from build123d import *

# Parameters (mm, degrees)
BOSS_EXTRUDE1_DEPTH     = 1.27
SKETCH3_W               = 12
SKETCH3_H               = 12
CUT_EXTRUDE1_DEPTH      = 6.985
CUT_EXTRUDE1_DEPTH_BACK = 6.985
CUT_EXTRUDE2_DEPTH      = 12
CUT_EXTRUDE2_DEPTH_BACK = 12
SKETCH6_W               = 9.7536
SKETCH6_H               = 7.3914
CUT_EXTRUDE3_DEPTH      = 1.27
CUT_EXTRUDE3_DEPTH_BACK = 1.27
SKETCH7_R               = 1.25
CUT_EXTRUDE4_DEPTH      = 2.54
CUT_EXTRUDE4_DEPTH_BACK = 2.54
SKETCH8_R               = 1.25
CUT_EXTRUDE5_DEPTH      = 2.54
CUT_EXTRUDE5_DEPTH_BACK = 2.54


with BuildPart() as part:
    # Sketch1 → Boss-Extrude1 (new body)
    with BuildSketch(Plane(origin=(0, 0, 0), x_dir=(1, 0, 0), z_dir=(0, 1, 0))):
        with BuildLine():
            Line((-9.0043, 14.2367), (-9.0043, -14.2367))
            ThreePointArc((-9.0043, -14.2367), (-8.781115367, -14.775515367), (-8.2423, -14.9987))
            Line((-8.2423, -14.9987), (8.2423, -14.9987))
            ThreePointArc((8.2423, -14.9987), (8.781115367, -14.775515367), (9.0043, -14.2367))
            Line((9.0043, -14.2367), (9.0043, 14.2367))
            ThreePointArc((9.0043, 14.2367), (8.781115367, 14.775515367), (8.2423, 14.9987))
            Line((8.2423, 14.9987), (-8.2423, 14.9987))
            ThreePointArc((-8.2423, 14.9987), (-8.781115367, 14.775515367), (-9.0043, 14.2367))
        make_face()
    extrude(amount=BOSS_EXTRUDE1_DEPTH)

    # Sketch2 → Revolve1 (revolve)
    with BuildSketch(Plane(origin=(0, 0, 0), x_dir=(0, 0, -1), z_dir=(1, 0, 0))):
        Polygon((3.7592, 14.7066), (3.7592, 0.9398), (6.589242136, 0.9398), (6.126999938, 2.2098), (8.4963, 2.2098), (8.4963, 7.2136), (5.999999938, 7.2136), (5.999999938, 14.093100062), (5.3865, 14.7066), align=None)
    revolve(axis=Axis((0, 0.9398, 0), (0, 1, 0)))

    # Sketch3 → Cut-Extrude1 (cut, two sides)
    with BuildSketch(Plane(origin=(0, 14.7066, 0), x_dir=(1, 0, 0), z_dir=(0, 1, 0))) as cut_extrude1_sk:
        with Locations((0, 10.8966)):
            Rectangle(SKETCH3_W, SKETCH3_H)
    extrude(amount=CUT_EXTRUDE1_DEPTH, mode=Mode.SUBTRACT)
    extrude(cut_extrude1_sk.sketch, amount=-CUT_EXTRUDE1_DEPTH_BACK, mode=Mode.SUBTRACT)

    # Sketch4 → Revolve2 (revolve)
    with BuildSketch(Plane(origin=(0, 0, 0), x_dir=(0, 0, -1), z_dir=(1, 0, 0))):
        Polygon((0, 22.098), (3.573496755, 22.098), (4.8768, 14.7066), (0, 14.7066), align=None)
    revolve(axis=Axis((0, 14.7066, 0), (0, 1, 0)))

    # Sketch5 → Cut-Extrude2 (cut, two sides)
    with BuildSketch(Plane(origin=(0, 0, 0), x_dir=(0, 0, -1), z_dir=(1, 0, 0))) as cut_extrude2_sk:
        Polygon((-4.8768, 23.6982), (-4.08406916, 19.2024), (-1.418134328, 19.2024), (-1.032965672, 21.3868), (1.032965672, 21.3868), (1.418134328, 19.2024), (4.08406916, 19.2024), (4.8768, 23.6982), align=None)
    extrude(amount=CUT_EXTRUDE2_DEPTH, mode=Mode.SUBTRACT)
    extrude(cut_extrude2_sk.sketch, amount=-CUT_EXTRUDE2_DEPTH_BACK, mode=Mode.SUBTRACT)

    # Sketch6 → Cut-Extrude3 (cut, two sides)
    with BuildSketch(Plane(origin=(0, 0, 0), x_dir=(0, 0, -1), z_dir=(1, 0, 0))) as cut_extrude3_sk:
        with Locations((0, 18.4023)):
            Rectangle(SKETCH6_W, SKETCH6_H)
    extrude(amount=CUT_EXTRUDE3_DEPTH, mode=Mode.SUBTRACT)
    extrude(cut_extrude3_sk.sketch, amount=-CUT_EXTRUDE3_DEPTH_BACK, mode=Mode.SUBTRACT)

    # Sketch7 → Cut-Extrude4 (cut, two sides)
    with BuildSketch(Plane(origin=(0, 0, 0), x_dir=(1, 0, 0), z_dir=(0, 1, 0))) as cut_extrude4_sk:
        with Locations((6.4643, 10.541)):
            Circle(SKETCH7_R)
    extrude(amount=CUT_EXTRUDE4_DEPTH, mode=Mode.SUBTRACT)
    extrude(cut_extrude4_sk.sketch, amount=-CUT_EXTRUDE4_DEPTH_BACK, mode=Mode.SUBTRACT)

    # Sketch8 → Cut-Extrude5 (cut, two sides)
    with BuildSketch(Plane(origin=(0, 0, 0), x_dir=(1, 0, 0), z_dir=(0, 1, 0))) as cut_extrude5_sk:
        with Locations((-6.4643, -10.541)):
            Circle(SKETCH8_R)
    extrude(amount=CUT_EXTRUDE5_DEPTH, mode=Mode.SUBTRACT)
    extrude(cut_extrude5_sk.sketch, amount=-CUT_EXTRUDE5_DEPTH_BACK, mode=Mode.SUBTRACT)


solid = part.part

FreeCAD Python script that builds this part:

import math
import FreeCAD as App
import Part
import Sketcher
from FreeCAD import Vector
Q = App.Units.Quantity

doc = App.newDocument("Part")
body = doc.addObject("PartDesign::Body", "Body")

# Sketch on XZ plane
sketch1 = body.newObject("Sketcher::SketchObject", "Sketch")
sketch1.AttachmentSupport = (doc.getObject("XZ_Plane"), [""])
sketch1.MapMode = "FlatFace"
sketch1.addGeometry([
    Part.LineSegment(Vector(-9, -14.2, 0), Vector(-9, 14.2, 0)),  # 0
    Part.ArcOfCircle(Part.Circle(Vector(-8.2, 14.2, 0), Vector(0, 0, 1), 0.8), math.radians(90), math.radians(180)),  # 1
    Part.LineSegment(Vector(-8.2, 15, 0), Vector(8.2, 15, 0)),  # 2
    Part.ArcOfCircle(Part.Circle(Vector(8.2, 14.2, 0), Vector(0, 0, 1), 0.8), math.radians(0), math.radians(90)),  # 3
    Part.LineSegment(Vector(9, 14.2, 0), Vector(9, -14.2, 0)),  # 4
    Part.ArcOfCircle(Part.Circle(Vector(8.2, -14.2, 0), Vector(0, 0, 1), 0.8), math.radians(-90), math.radians(0)),  # 5
    Part.LineSegment(Vector(8.2, -15, 0), Vector(-8.2, -15, 0)),  # 6
    Part.ArcOfCircle(Part.Circle(Vector(-8.2, -14.2, 0), Vector(0, 0, 1), 0.8), math.radians(-180), math.radians(-90)),  # 7
], False)
sketch1.addConstraint([
    Sketcher.Constraint("Tangent", 0, 2, 1, 2),
    Sketcher.Constraint("Tangent", 1, 1, 2, 1),
    Sketcher.Constraint("Tangent", 2, 2, 3, 2),
    Sketcher.Constraint("Tangent", 3, 1, 4, 1),
    Sketcher.Constraint("Tangent", 4, 2, 5, 2),
    Sketcher.Constraint("Tangent", 5, 1, 6, 1),
    Sketcher.Constraint("Tangent", 6, 2, 7, 2),
    Sketcher.Constraint("Tangent", 7, 1, 0, 1),
    Sketcher.Constraint("Vertical", 0),
    Sketcher.Constraint("Horizontal", 2),
    Sketcher.Constraint("Vertical", 4),
    Sketcher.Constraint("Horizontal", 6),
    Sketcher.Constraint("Equal", 1, 3),
    Sketcher.Constraint("Equal", 3, 5),
    Sketcher.Constraint("Equal", 5, 7),
    Sketcher.Constraint("Symmetric", 1, 3, 5, 3, -1, 1),
    Sketcher.Constraint("Radius", 1, Q("0.03 in")),
    Sketcher.Constraint("DistanceX", 2, 1, 2, 2, Q("0.649 in")),
    Sketcher.Constraint("DistanceY", 0, 1, 0, 2, Q("1.121 in")),
])
pad1 = body.newObject("PartDesign::Pad", "Pad")
pad1.Profile = sketch1
pad1.Length = Q("0.05 in")
pad1.Reversed = True

# Sketch on YZ plane
sketch2 = body.newObject("Sketcher::SketchObject", "Sketch001")
sketch2.AttachmentSupport = (doc.getObject("YZ_Plane"), [""])
sketch2.MapMode = "FlatFace"
sketch2.addGeometry([
    Part.LineSegment(Vector(14.7, -3.8, 0), Vector(0.9, -3.8, 0)),  # 0
    Part.LineSegment(Vector(0.9, -3.8, 0), Vector(0.9, -6.6, 0)),  # 1
    Part.LineSegment(Vector(0.9, -6.6, 0), Vector(2.2, -6.1, 0)),  # 2
    Part.LineSegment(Vector(2.2, -6.1, 0), Vector(2.2, -8.5, 0)),  # 3
    Part.LineSegment(Vector(2.2, -8.5, 0), Vector(7.2, -8.5, 0)),  # 4
    Part.LineSegment(Vector(7.2, -8.5, 0), Vector(7.2, -6, 0)),  # 5
    Part.LineSegment(Vector(7.2, -6, 0), Vector(14.1, -6, 0)),  # 6
    Part.LineSegment(Vector(14.1, -6, 0), Vector(14.7, -5.4, 0)),  # 7
    Part.LineSegment(Vector(14.7, -5.4, 0), Vector(14.7, -3.8, 0)),  # 8
], False)
sketch2.addConstraint([
    Sketcher.Constraint("Coincident", 0, 2, 1, 1),
    Sketcher.Constraint("Coincident", 1, 2, 2, 1),
    Sketcher.Constraint("Coincident", 2, 2, 3, 1),
    Sketcher.Constraint("Coincident", 3, 2, 4, 1),
    Sketcher.Constraint("Coincident", 4, 2, 5, 1),
    Sketcher.Constraint("Coincident", 5, 2, 6, 1),
    Sketcher.Constraint("Coincident", 6, 2, 7, 1),
    Sketcher.Constraint("Coincident", 7, 2, 8, 1),
    Sketcher.Constraint("Coincident", 8, 2, 0, 1),
    Sketcher.Constraint("Horizontal", 0),
    Sketcher.Constraint("Vertical", 1),
    Sketcher.Constraint("Vertical", 3),
    Sketcher.Constraint("Horizontal", 4),
    Sketcher.Constraint("Vertical", 5),
    Sketcher.Constraint("Horizontal", 6),
    Sketcher.Constraint("Vertical", 8),
    Sketcher.Constraint("Angle", 2, Q("20 deg")),
    Sketcher.Constraint("Angle", 7, Q("45 deg")),
    Sketcher.Constraint("DistanceX", 0, 2, 0, 1, Q("0.542 in")),
    Sketcher.Constraint("DistanceX", 4, 1, 4, 2, Q("0.197 in")),
    Sketcher.Constraint("DistanceX", 1, 2, 2, 2, Q("0.05 in")),
    Sketcher.Constraint("DistanceX", -1, 1, 0, 2, Q("0.037 in")),
    Sketcher.Constraint("DistanceY", 0, 2, -1, 1, Q("0.148 in")),
    Sketcher.Constraint("DistanceY", 2, 2, 5, 2, Q("0.005 in")),
    Sketcher.Constraint("DistanceX", 6, 1, 6, 2, 6.8795),
    Sketcher.Constraint("DistanceY", 3, 2, 3, 1, 2.3693),
    Sketcher.Constraint("DistanceY", 8, 1, 8, 2, 1.6273),
])
revolution = body.newObject("PartDesign::Revolution", "Revolution")
revolution.Profile = sketch2
revolution.ReferenceAxis = (sketch2, ["H_Axis"])
revolution.Angle = 360

# Sketch on XZ plane
sketch3 = body.newObject("Sketcher::SketchObject", "Sketch002")
sketch3.AttachmentSupport = (doc.getObject("XZ_Plane"), [""])
sketch3.MapMode = "FlatFace"
sketch3.AttachmentOffset = App.Placement(Vector(0, 0, -0.579 * 25.4), App.Rotation())
sketch3.addGeometry([
    Part.LineSegment(Vector(-6, -17, 0), Vector(-6, -5, 0)),
    Part.LineSegment(Vector(-6, -5, 0), Vector(6, -5, 0)),
    Part.LineSegment(Vector(6, -5, 0), Vector(6, -17, 0)),
    Part.LineSegment(Vector(6, -17, 0), Vector(-6, -17, 0)),
], False)
sketch3.addConstraint([
    Sketcher.Constraint("Coincident", 0, 2, 1, 1),
    Sketcher.Constraint("Coincident", 1, 2, 2, 1),
    Sketcher.Constraint("Coincident", 2, 2, 3, 1),
    Sketcher.Constraint("Coincident", 3, 2, 0, 1),
    Sketcher.Constraint("Vertical", 0),
    Sketcher.Constraint("Horizontal", 1),
    Sketcher.Constraint("Vertical", 2),
    Sketcher.Constraint("Horizontal", 3),
    Sketcher.Constraint("Equal", 3, 0),
    Sketcher.Constraint("DistanceX", 1, 1, 1, 2, 12.0),
    Sketcher.Constraint("DistanceX", 0, 2, -1, 1, 6.0),
    Sketcher.Constraint("DistanceY", 0, 2, -1, 1, 4.8966),
])
pocket1 = body.newObject("PartDesign::Pocket", "Pocket")
pocket1.Profile = sketch3
pocket1.Type = "TwoLengths"
pocket1.Length = Q("0.275 in")
pocket1.Length2 = Q("0.275 in")

# Sketch on YZ plane
sketch4 = body.newObject("Sketcher::SketchObject", "Sketch003")
sketch4.AttachmentSupport = (doc.getObject("YZ_Plane"), [""])
sketch4.MapMode = "FlatFace"
sketch4.addGeometry([
    Part.LineSegment(Vector(22.1, -3.6, 0), Vector(22.1, 0, 0)),
    Part.LineSegment(Vector(22.1, 0, 0), Vector(14.7, 0, 0)),
    Part.LineSegment(Vector(14.7, 0, 0), Vector(14.7, -4.9, 0)),
    Part.LineSegment(Vector(14.7, -4.9, 0), Vector(22.1, -3.6, 0)),
], False)
sketch4.addConstraint([
    Sketcher.Constraint("Coincident", 0, 2, 1, 1),
    Sketcher.Constraint("Coincident", 1, 2, 2, 1),
    Sketcher.Constraint("Coincident", 2, 2, 3, 1),
    Sketcher.Constraint("Coincident", 3, 2, 0, 1),
    Sketcher.Constraint("Vertical", 0),
    Sketcher.Constraint("Horizontal", 1),
    Sketcher.Constraint("Vertical", 2),
    Sketcher.Constraint("PointOnObject", 0, 2, -1),
    Sketcher.Constraint("Angle", 3, Q("10 deg")),
    Sketcher.Constraint("DistanceX", 1, 2, 1, 1, Q("0.291 in")),
    Sketcher.Constraint("DistanceY", 2, 2, 2, 1, Q("0.192 in")),
    Sketcher.Constraint("DistanceX", -1, 1, 0, 2, Q("0.87 in")),
])
revolution2 = body.newObject("PartDesign::Revolution", "Revolution001")
revolution2.Profile = sketch4
revolution2.ReferenceAxis = (sketch4, ["H_Axis"])
revolution2.Angle = 360

# Sketch on YZ plane
sketch5 = body.newObject("Sketcher::SketchObject", "Sketch004")
sketch5.AttachmentSupport = (doc.getObject("YZ_Plane"), [""])
sketch5.MapMode = "FlatFace"
sketch5.addGeometry([
    Part.LineSegment(Vector(23.7, 4.9, 0), Vector(19.2, 4.1, 0)),  # 0
    Part.LineSegment(Vector(19.2, 4.1, 0), Vector(19.2, 1.4, 0)),  # 1
    Part.LineSegment(Vector(19.2, 1.4, 0), Vector(21.4, 1, 0)),  # 2
    Part.LineSegment(Vector(21.4, 1, 0), Vector(21.4, -1, 0)),  # 3
    Part.LineSegment(Vector(21.4, -1, 0), Vector(19.2, -1.4, 0)),  # 4
    Part.LineSegment(Vector(19.2, -1.4, 0), Vector(19.2, -4.1, 0)),  # 5
    Part.LineSegment(Vector(19.2, -4.1, 0), Vector(23.7, -4.9, 0)),  # 6
    Part.LineSegment(Vector(23.7, -4.9, 0), Vector(23.7, 4.9, 0)),  # 7
], False)
sketch5.addConstraint([
    Sketcher.Constraint("Coincident", 0, 2, 1, 1),
    Sketcher.Constraint("Coincident", 1, 2, 2, 1),
    Sketcher.Constraint("Coincident", 2, 2, 3, 1),
    Sketcher.Constraint("Coincident", 3, 2, 4, 1),
    Sketcher.Constraint("Coincident", 4, 2, 5, 1),
    Sketcher.Constraint("Coincident", 5, 2, 6, 1),
    Sketcher.Constraint("Coincident", 6, 2, 7, 1),
    Sketcher.Constraint("Coincident", 7, 2, 0, 1),
    Sketcher.Constraint("Vertical", 1),
    Sketcher.Constraint("Vertical", 3),
    Sketcher.Constraint("Vertical", 5),
    Sketcher.Constraint("Vertical", 7),
    Sketcher.Constraint("Symmetric", 1, 2, 4, 2, -1),
    Sketcher.Constraint("Parallel", 0, 4),
    Sketcher.Constraint("Parallel", 2, 6),
    Sketcher.Constraint("Equal", 1, 5),
    Sketcher.Constraint("Equal", 2, 4),
    Sketcher.Constraint("Angle", 0, Q("-170 deg")),
    Sketcher.Constraint("DistanceY", 7, 1, 7, 2, Q("0.384 in")),
    Sketcher.Constraint("DistanceX", -1, 1, 0, 2, Q("0.756 in")),
    Sketcher.Constraint("DistanceX", -1, 1, 2, 2, Q("0.842 in")),
    Sketcher.Constraint("DistanceX", -1, 1, 6, 2, Q("0.933 in")),
    Sketcher.Constraint("DistanceY", 3, 2, 1, 2, Q("0.0965 in")),
])
pocket2 = body.newObject("PartDesign::Pocket", "Pocket001")
pocket2.Profile = sketch5
pocket2.Type = "ThroughAll"
pocket2.Midplane = True

# Sketch on YZ plane
sketch6 = body.newObject("Sketcher::SketchObject", "Sketch005")
sketch6.AttachmentSupport = (doc.getObject("YZ_Plane"), [""])
sketch6.MapMode = "FlatFace"
sketch6.addGeometry([
    Part.LineSegment(Vector(22, 5, 0), Vector(15, 5, 0)),
    Part.LineSegment(Vector(15, 5, 0), Vector(15, -5, 0)),
    Part.LineSegment(Vector(15, -5, 0), Vector(22, -5, 0)),
    Part.LineSegment(Vector(22, -5, 0), Vector(22, 5, 0)),
], False)
sketch6.addConstraint([
    Sketcher.Constraint("Coincident", 0, 2, 1, 1),
    Sketcher.Constraint("Coincident", 1, 2, 2, 1),
    Sketcher.Constraint("Coincident", 2, 2, 3, 1),
    Sketcher.Constraint("Coincident", 3, 2, 0, 1),
    Sketcher.Constraint("Horizontal", 0),
    Sketcher.Constraint("Vertical", 1),
    Sketcher.Constraint("Horizontal", 2),
    Sketcher.Constraint("Vertical", 3),
    Sketcher.Constraint("DistanceX", 0, 2, 0, 1, Q("0.291 in")),
    Sketcher.Constraint("DistanceY", 1, 2, 1, 1, Q("0.384 in")),
    Sketcher.Constraint("DistanceX", -1, 1, 2, 2, Q("0.87 in")),
    Sketcher.Constraint("DistanceY", -1, 1, 0, 2, Q("0.192 in")),
])
pocket3 = body.newObject("PartDesign::Pocket", "Pocket002")
pocket3.Profile = sketch6
pocket3.Type = "TwoLengths"
pocket3.Length = Q("0.05 in")
pocket3.Length2 = Q("0.05 in")
pocket3.Reversed = True

# Sketch on XZ plane
sketch7 = body.newObject("Sketcher::SketchObject", "Sketch006")
sketch7.AttachmentSupport = (doc.getObject("XZ_Plane"), [""])
sketch7.MapMode = "FlatFace"
sketch7.addGeometry(Part.Circle(Vector(6.5, -10.5, 0), Vector(0, 0, 1), 1.2), False)
sketch7.addConstraint([
    Sketcher.Constraint("Diameter", 0, 2.5),
    Sketcher.Constraint("DistanceY", 0, 3, -1, 1, Q("0.415 in")),
    Sketcher.Constraint("DistanceX", -1, 1, 0, 3, Q("0.2545 in")),
])
pocket4 = body.newObject("PartDesign::Pocket", "Pocket003")
pocket4.Profile = sketch7
pocket4.Type = "ThroughAll"
pocket4.Midplane = True

# Sketch on XZ plane
sketch8 = body.newObject("Sketcher::SketchObject", "Sketch007")
sketch8.AttachmentSupport = (doc.getObject("XZ_Plane"), [""])
sketch8.MapMode = "FlatFace"
sketch8.addGeometry(Part.Circle(Vector(-6.5, 10.5, 0), Vector(0, 0, 1), 1.2), False)
sketch8.addConstraint([
    Sketcher.Constraint("Diameter", 0, 2.5),
    Sketcher.Constraint("DistanceY", -1, 1, 0, 3, Q("0.415 in")),
    Sketcher.Constraint("DistanceX", 0, 3, -1, 1, Q("0.2545 in")),
])
pocket5 = body.newObject("PartDesign::Pocket", "Pocket004")
pocket5.Profile = sketch8
pocket5.Type = "ThroughAll"
pocket5.Midplane = True

doc.recompute()
